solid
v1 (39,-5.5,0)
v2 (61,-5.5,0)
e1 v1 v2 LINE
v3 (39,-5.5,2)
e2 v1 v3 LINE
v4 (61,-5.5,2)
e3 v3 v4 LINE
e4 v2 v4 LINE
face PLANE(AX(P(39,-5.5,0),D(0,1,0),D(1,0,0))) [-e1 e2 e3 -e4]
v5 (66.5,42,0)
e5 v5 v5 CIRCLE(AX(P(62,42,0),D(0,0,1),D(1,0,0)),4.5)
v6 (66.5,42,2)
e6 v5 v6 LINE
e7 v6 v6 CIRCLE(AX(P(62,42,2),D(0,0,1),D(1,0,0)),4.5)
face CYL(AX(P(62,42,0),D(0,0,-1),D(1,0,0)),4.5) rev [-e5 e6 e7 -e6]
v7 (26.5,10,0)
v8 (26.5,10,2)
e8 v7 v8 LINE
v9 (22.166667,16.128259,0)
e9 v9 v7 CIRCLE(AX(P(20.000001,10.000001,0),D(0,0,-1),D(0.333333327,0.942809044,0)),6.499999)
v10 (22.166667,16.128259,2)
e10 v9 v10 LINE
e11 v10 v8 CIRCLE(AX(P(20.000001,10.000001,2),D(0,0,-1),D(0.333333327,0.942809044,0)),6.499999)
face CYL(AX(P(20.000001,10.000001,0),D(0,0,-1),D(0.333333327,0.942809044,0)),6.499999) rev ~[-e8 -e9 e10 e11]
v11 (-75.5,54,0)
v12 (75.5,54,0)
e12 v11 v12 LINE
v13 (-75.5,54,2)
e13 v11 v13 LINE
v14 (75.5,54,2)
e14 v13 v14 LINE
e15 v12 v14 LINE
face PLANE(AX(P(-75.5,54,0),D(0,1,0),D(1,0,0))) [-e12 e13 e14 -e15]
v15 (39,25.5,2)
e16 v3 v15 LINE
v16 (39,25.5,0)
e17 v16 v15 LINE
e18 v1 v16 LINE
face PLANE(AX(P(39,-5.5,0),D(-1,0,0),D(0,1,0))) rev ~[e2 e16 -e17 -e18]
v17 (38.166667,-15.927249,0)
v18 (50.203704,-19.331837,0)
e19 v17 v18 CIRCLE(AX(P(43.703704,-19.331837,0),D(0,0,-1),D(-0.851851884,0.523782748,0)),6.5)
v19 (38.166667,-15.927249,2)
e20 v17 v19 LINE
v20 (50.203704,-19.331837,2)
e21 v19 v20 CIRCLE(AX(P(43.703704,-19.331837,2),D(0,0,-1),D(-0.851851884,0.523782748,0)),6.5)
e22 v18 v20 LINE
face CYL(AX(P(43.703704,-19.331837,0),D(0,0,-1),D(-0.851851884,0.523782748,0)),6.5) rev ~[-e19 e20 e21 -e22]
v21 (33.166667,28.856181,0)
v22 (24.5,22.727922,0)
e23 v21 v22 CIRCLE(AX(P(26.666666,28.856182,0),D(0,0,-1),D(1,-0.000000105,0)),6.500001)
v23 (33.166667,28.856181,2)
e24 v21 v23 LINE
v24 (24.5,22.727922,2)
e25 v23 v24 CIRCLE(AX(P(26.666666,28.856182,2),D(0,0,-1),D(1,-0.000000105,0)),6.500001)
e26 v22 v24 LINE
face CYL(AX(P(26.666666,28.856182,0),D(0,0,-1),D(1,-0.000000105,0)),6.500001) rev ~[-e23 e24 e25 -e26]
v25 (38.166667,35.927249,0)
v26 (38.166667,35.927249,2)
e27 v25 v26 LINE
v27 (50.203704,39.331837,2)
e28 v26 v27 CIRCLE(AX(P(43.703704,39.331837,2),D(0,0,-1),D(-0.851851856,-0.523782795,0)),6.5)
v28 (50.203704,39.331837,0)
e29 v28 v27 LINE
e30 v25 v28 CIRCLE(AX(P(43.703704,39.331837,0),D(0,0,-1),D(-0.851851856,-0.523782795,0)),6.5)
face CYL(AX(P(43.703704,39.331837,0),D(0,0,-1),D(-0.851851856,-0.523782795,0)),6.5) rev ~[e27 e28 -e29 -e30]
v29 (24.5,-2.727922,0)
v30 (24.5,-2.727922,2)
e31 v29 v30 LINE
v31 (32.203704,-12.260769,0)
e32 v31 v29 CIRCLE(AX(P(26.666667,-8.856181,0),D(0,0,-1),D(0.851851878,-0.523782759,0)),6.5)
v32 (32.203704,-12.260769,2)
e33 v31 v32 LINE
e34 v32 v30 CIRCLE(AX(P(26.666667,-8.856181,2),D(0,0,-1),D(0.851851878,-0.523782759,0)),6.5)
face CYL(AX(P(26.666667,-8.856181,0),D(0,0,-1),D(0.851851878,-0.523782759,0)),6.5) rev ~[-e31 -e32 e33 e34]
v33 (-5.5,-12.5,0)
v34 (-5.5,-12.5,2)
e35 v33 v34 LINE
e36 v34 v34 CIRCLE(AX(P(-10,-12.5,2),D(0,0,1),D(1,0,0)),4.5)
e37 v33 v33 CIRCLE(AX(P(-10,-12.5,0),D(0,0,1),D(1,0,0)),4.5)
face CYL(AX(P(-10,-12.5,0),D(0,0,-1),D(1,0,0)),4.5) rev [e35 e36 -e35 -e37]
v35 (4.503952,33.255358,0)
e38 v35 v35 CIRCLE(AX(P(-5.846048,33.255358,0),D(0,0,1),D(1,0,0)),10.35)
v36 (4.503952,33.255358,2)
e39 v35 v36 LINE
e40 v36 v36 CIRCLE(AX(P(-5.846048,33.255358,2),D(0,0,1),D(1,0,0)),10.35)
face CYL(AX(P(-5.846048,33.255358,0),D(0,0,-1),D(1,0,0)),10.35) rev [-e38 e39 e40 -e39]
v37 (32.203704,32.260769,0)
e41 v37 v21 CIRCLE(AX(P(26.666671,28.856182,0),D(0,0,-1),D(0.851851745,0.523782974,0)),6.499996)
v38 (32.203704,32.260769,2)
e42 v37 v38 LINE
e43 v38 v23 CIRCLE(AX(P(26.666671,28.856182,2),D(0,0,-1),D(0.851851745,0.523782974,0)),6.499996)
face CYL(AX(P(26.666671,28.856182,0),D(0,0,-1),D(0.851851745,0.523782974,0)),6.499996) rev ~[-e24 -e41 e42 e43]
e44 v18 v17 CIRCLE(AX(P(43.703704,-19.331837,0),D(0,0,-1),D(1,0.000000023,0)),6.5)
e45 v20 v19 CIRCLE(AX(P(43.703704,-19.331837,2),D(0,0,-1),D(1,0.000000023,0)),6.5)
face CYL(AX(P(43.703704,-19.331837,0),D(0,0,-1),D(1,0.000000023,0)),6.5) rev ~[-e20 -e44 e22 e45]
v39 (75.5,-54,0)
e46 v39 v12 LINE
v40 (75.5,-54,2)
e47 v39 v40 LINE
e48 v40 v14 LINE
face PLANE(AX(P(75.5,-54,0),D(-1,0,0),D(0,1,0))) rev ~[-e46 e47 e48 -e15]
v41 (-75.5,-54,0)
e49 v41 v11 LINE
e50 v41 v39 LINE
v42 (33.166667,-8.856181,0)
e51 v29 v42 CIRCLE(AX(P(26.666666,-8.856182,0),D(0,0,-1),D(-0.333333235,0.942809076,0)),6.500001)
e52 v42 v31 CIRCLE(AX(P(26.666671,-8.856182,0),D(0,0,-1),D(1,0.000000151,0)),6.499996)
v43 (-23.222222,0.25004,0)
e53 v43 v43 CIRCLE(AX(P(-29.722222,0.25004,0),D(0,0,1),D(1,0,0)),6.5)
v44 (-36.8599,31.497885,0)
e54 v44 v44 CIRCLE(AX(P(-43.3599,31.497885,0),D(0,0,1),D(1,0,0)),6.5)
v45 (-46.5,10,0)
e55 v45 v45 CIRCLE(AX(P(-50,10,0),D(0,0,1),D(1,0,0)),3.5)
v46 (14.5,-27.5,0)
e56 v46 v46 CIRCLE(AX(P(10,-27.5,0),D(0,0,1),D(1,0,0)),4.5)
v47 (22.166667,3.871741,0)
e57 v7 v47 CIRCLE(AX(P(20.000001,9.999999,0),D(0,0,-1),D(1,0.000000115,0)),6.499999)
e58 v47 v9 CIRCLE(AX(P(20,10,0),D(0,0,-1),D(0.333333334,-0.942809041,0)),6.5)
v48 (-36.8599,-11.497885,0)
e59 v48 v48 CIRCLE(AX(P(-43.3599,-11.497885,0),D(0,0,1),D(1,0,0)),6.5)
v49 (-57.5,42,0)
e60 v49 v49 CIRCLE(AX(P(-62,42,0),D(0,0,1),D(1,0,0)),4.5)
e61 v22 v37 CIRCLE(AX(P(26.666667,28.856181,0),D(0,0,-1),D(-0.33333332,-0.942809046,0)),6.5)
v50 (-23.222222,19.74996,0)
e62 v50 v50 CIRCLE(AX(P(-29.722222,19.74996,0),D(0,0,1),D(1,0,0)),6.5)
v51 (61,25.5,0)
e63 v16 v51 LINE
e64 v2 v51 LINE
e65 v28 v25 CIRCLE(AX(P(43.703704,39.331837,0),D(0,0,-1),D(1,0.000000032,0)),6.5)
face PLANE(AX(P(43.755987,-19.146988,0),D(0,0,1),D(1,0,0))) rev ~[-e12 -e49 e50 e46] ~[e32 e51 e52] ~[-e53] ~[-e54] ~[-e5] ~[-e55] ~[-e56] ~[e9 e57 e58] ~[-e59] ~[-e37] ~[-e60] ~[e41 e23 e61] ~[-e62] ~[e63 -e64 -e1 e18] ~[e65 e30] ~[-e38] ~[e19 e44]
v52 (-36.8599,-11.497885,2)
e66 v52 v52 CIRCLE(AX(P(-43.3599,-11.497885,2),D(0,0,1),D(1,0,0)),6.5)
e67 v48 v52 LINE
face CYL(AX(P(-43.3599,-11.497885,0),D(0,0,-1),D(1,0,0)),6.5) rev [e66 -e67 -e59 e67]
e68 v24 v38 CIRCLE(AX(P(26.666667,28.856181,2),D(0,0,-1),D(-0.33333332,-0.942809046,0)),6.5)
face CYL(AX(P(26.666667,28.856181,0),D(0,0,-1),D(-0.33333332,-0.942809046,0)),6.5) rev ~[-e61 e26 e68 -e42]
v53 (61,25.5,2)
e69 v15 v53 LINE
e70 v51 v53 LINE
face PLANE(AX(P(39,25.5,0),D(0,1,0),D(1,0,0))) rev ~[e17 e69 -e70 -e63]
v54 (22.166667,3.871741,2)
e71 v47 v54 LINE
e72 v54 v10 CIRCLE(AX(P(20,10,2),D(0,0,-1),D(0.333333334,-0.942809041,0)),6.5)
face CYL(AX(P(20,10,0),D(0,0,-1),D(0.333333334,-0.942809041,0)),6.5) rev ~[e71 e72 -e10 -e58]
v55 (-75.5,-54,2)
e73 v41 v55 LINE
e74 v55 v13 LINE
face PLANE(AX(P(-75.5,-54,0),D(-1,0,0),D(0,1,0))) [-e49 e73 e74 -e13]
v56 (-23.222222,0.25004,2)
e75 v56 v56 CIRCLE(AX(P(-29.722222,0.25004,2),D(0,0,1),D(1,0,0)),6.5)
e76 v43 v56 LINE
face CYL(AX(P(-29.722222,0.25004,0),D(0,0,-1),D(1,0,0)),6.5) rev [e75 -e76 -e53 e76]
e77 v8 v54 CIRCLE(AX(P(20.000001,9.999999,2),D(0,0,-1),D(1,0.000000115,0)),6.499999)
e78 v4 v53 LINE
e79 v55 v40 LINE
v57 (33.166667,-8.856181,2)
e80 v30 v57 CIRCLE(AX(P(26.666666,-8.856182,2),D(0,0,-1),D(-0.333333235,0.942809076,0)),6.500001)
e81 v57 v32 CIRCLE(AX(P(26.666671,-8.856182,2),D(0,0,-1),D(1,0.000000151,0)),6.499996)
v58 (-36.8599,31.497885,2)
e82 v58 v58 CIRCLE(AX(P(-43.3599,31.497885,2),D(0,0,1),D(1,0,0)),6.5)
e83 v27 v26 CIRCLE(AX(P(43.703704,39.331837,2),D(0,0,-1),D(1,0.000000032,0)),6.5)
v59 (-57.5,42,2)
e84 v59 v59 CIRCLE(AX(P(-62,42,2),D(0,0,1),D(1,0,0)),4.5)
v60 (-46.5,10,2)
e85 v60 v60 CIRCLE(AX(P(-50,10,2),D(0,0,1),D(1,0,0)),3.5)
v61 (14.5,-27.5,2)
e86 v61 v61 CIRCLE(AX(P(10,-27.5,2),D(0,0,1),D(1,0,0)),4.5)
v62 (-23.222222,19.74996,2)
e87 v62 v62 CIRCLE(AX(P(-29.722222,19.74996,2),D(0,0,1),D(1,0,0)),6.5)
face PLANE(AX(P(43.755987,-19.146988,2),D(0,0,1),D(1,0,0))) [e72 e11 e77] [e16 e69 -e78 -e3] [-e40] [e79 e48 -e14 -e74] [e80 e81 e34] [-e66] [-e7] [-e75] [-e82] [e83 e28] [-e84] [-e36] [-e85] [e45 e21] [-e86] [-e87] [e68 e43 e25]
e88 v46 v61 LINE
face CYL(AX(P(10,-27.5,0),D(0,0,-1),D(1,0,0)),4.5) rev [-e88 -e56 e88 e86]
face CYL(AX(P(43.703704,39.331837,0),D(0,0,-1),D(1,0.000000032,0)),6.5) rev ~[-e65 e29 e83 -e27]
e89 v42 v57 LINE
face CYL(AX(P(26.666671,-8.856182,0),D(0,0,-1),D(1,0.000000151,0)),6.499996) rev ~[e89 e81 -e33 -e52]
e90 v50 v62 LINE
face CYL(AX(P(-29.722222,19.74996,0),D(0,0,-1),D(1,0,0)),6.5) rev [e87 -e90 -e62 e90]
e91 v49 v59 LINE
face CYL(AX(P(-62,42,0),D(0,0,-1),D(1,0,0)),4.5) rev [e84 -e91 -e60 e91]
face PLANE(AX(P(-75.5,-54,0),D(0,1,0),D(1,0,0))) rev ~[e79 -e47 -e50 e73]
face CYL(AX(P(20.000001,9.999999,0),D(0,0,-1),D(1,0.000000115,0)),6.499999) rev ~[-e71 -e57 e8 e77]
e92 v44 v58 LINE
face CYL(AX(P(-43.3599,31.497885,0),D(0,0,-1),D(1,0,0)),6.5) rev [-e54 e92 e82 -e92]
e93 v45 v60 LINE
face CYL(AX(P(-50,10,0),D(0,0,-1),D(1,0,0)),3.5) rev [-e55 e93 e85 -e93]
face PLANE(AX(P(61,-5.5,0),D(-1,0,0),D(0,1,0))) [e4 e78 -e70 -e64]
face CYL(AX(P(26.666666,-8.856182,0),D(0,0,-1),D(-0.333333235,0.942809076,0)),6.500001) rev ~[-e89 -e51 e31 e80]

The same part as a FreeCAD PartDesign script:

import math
import FreeCAD as App
import Part
import Sketcher
from FreeCAD import Vector

doc = App.newDocument("Part")
params = doc.addObject("Spreadsheet::Sheet", "Params")
for row, (alias, value) in enumerate([
    ("sketch1_diameter", "9 mm"),
    ("sketch1_diameter2", "13 mm"),
    ("sketch1_diameter3", "7 mm"),
    ("sketch1_diameter4", "20.7 mm"),
    ("sketch1_width", "151 mm"),
    ("pad1_length", "2 mm"),
], start=1):
    params.set(f"A{row}", alias)
    params.set(f"B{row}", "=" + value)
    params.setAlias(f"B{row}", alias)

body = doc.addObject("PartDesign::Body", "Body")

sketch1 = doc.addObject("Sketcher::SketchObject", "Sketch")
body.addObject(sketch1)
sketch1.AttachmentSupport = (doc.XY_Plane, [""])
sketch1.MapMode = "FlatFace"
sketch1.addGeometry(Part.LineSegment(Vector(-75.5, 54, 0), Vector(-75.5, -54, 0)), False)
sketch1.addGeometry(Part.LineSegment(Vector(-75.5, -54, 0), Vector(75.5, -54, 0)), False)
sketch1.addGeometry(Part.LineSegment(Vector(75.5, -54, 0), Vector(75.5, 54, 0)), False)
sketch1.addGeometry(Part.LineSegment(Vector(75.5, 54, 0), Vector(-75.5, 54, 0)), False)
sketch1.addGeometry(Part.Circle(Vector(-10, -12.5, 0), Vector(0, 0, 1), 4.5), False)
sketch1.addGeometry(Part.Circle(Vector(-43.4, -11.5, 0), Vector(0, 0, 1), 6.5), False)
sketch1.addGeometry(Part.Circle(Vector(-29.7, 0.3, 0), Vector(0, 0, 1), 6.5), False)
sketch1.addGeometry(Part.Circle(Vector(10, -27.5, 0), Vector(0, 0, 1), 4.5), False)
sketch1.addGeometry(Part.ArcOfCircle(Part.Circle(Vector(43.7, -19.3, 0), Vector(0, 0, 1), 6.5), math.radians(0), math.radians(148)), False)
sketch1.addGeometry(Part.ArcOfCircle(Part.Circle(Vector(43.7, -19.3, 0), Vector(0, 0, 1), 6.5), math.radians(148), math.radians(360)), False)
sketch1.addGeometry(Part.ArcOfCircle(Part.Circle(Vector(26.7, -8.9, 0), Vector(0, 0, 1), 6.5), math.radians(-32), math.radians(0)), False)
sketch1.addGeometry(Part.ArcOfCircle(Part.Circle(Vector(26.7, -8.9, 0), Vector(0, 0, 1), 6.5), math.radians(109), math.radians(328)), False)
sketch1.addGeometry(Part.ArcOfCircle(Part.Circle(Vector(26.7, -8.9, 0), Vector(0, 0, 1), 6.5), math.radians(0), math.radians(109)), False)
sketch1.addGeometry(Part.Circle(Vector(-50, 10, 0), Vector(0, 0, 1), 3.5), False)
sketch1.addGeometry(Part.Circle(Vector(-29.7, 19.7, 0), Vector(0, 0, 1), 6.5), False)
sketch1.addGeometry(Part.Circle(Vector(-43.4, 31.5, 0), Vector(0, 0, 1), 6.5), False)
sketch1.addGeometry(Part.Circle(Vector(-62, 42, 0), Vector(0, 0, 1), 4.5), False)
sketch1.addGeometry(Part.Circle(Vector(-5.8, 33.3, 0), Vector(0, 0, 1), 10.3), False)
sketch1.addGeometry(Part.ArcOfCircle(Part.Circle(Vector(20, 10, 0), Vector(0, 0, 1), 6.5), math.radians(71), math.radians(289)), False)
sketch1.addGeometry(Part.ArcOfCircle(Part.Circle(Vector(20, 10, 0), Vector(0, 0, 1), 6.5), math.radians(0), math.radians(71)), False)
sketch1.addGeometry(Part.ArcOfCircle(Part.Circle(Vector(20, 10, 0), Vector(0, 0, 1), 6.5), math.radians(-71), math.radians(0)), False)
sketch1.addGeometry(Part.LineSegment(Vector(61, -5.5, 0), Vector(39, -5.5, 0)), False)
sketch1.addGeometry(Part.LineSegment(Vector(39, -5.5, 0), Vector(39, 25.5, 0)), False)
sketch1.addGeometry(Part.LineSegment(Vector(39, 25.5, 0), Vector(61, 25.5, 0)), False)
sketch1.addGeometry(Part.LineSegment(Vector(61, 25.5, 0), Vector(61, -5.5, 0)), False)
sketch1.addGeometry(Part.ArcOfCircle(Part.Circle(Vector(26.7, 28.9, 0), Vector(0, 0, 1), 6.5), math.radians(0), math.radians(32)), False)
sketch1.addGeometry(Part.ArcOfCircle(Part.Circle(Vector(26.7, 28.9, 0), Vector(0, 0, 1), 6.5), math.radians(-109), math.radians(0)), False)
sketch1.addGeometry(Part.ArcOfCircle(Part.Circle(Vector(26.7, 28.9, 0), Vector(0, 0, 1), 6.5), math.radians(32), math.radians(251)), False)
sketch1.addGeometry(Part.ArcOfCircle(Part.Circle(Vector(43.7, 39.3, 0), Vector(0, 0, 1), 6.5), math.radians(0), math.radians(212)), False)
sketch1.addGeometry(Part.ArcOfCircle(Part.Circle(Vector(43.7, 39.3, 0), Vector(0, 0, 1), 6.5), math.radians(-148), math.radians(0)), False)
sketch1.addGeometry(Part.Circle(Vector(62, 42, 0), Vector(0, 0, 1), 4.5), False)
sketch1.addConstraint(Sketcher.Constraint("Coincident", 0, 2, 1, 1))
sketch1.addConstraint(Sketcher.Constraint("Coincident", 1, 2, 2, 1))
sketch1.addConstraint(Sketcher.Constraint("Coincident", 2, 2, 3, 1))
sketch1.addConstraint(Sketcher.Constraint("Coincident", 3, 2, 0, 1))
sketch1.addConstraint(Sketcher.Constraint("Tangent", 8, 1, 9, 2))
sketch1.addConstraint(Sketcher.Constraint("Coincident", 9, 1, 8, 2))
sketch1.addConstraint(Sketcher.Constraint("Tangent", 10, 1, 11, 2))
sketch1.addConstraint(Sketcher.Constraint("Tangent", 11, 1, 12, 2))
sketch1.addConstraint(Sketcher.Constraint("Tangent", 12, 1, 10, 2))
sketch1.addConstraint(Sketcher.Constraint("Tangent", 18, 1, 19, 2))
sketch1.addConstraint(Sketcher.Constraint("Tangent", 19, 1, 20, 2))
sketch1.addConstraint(Sketcher.Constraint("Tangent", 20, 1, 18, 2))
sketch1.addConstraint(Sketcher.Constraint("Coincident", 21, 2, 22, 1))
sketch1.addConstraint(Sketcher.Constraint("Coincident", 22, 2, 23, 1))
sketch1.addConstraint(Sketcher.Constraint("Coincident", 23, 2, 24, 1))
sketch1.addConstraint(Sketcher.Constraint("Coincident", 24, 2, 21, 1))
sketch1.addConstraint(Sketcher.Constraint("Tangent", 25, 1, 26, 2))
sketch1.addConstraint(Sketcher.Constraint("Tangent", 26, 1, 27, 2))
sketch1.addConstraint(Sketcher.Constraint("Tangent", 27, 1, 25, 2))
sketch1.addConstraint(Sketcher.Constraint("Tangent", 28, 1, 29, 2))
sketch1.addConstraint(Sketcher.Constraint("Coincident", 29, 1, 28, 2))
sketch1.addConstraint(Sketcher.Constraint("Vertical", 0))
sketch1.addConstraint(Sketcher.Constraint("Horizontal", 1))
sketch1.addConstraint(Sketcher.Constraint("Vertical", 2))
sketch1.addConstraint(Sketcher.Constraint("Horizontal", 3))
sketch1.addConstraint(Sketcher.Constraint("Horizontal", 21))
sketch1.addConstraint(Sketcher.Constraint("Vertical", 22))
sketch1.addConstraint(Sketcher.Constraint("Horizontal", 23))
sketch1.addConstraint(Sketcher.Constraint("Vertical", 24))
sketch1.addConstraint(Sketcher.Constraint("Equal", 5, 6))
sketch1.addConstraint(Sketcher.Constraint("Equal", 4, 7))
sketch1.addConstraint(Sketcher.Constraint("Equal", 6, 8))
sketch1.addConstraint(Sketcher.Constraint("Equal", 9, 11))
sketch1.addConstraint(Sketcher.Constraint("Equal", 12, 14))
sketch1.addConstraint(Sketcher.Constraint("Equal", 14, 15))
sketch1.addConstraint(Sketcher.Constraint("Equal", 7, 16))
sketch1.addConstraint(Sketcher.Constraint("Equal", 15, 18))
sketch1.addConstraint(Sketcher.Constraint("Equal", 10, 25))
sketch1.addConstraint(Sketcher.Constraint("Equal", 27, 28))
sketch1.addConstraint(Sketcher.Constraint("Equal", 16, 30))
sketch1.addConstraint(Sketcher.Constraint("Symmetric", 0, 2, 2, 2, -1, 1))
sketch1.addConstraint(Sketcher.Constraint("Symmetric", 16, 3, 30, 3, -2))
sketch1.addConstraint(Sketcher.Constraint("Horizontal", 13, 3, 18, 3))
sketch1.addConstraint(Sketcher.Constraint("Horizontal", 9, 3, 8, 1))
sketch1.addConstraint(Sketcher.Constraint("Horizontal", 11, 3, 12, 1))
sketch1.addConstraint(Sketcher.Constraint("Horizontal", 20, 3, 19, 1))
sketch1.addConstraint(Sketcher.Constraint("Horizontal", 27, 3, 25, 1))
sketch1.addConstraint(Sketcher.Constraint("Horizontal", 29, 3, 28, 1))
sketch1.addConstraint(Sketcher.Constraint("Vertical", 6, 3, 14, 3))
sketch1.addConstraint(Sketcher.Constraint("Vertical", 5, 3, 15, 3))
sketch1.addConstraint(Sketcher.Constraint("Vertical", 10, 3, 25, 3))
sketch1.addConstraint(Sketcher.Constraint("Vertical", 9, 3, 28, 3))
sketch1.addConstraint(Sketcher.Constraint("Vertical", 18, 1, 20, 1))
sketch1.addConstraint(Sketcher.Constraint("Vertical", 11, 1, 26, 1))
sketch1.addConstraint(Sketcher.Constraint("Vertical", 10, 1, 27, 1))
sketch1.addConstraint(Sketcher.Constraint("Vertical", 9, 1, 29, 1))
sketch1.addConstraint(Sketcher.Constraint("Diameter", 4, 9.0))
sketch1.addConstraint(Sketcher.Constraint("Diameter", 5, 13.0))
sketch1.addConstraint(Sketcher.Constraint("Diameter", 13, 7.0))
sketch1.addConstraint(Sketcher.Constraint("Diameter", 17, 20.7))
sketch1.addConstraint(Sketcher.Constraint("DistanceX", 1, 1, 1, 2, 151.0))
sketch1.addConstraint(Sketcher.Constraint("DistanceX", 21, 2, 21, 1, 22.0))
sketch1.addConstraint(Sketcher.Constraint("DistanceY", 0, 2, 0, 1, 108.0))
sketch1.addConstraint(Sketcher.Constraint("DistanceY", 22, 1, 22, 2, 31.0))
sketch1.addConstraint(Sketcher.Constraint("DistanceX", 4, 3, -1, 1, 10.0))
sketch1.addConstraint(Sketcher.Constraint("DistanceX", -1, 1, 7, 3, 10.0))
sketch1.addConstraint(Sketcher.Constraint("DistanceX", 13, 3, -1, 1, 50.0))
sketch1.addConstraint(Sketcher.Constraint("DistanceY", -1, 1, 13, 3, 10.0))
sketch1.addConstraint(Sketcher.Constraint("DistanceX", 16, 3, -1, 1, 62.0))
sketch1.addConstraint(Sketcher.Constraint("DistanceY", -1, 1, 16, 3, 42.0))
sketch1.addConstraint(Sketcher.Constraint("DistanceX", -1, 1, 18, 3, 20.0))
sketch1.addConstraint(Sketcher.Constraint("DistanceX", -1, 1, 21, 2, 39.0))
sketch1.addConstraint(Sketcher.Constraint("DistanceY", 7, 3, 4, 3, 15.0))
sketch1.addConstraint(Sketcher.Constraint("DistanceX", 12, 1, 9, 1, 5.0))
sketch1.addConstraint(Sketcher.Constraint("DistanceX", 11, 1, 19, 1, 2.0))
sketch1.addConstraint(Sketcher.Constraint("DistanceY", 4, 3, -1, 1, 12.5))
sketch1.addConstraint(Sketcher.Constraint("DistanceY", 21, 2, -1, 1, 5.5))
sketch1.addConstraint(Sketcher.Constraint("DistanceX", 10, 1, 8, 3, 11.5))
sketch1.addConstraint(Sketcher.Constraint("DistanceX", 18, 1, 27, 3, 4.5))
sketch1.addConstraint(Sketcher.Constraint("DistanceX", 5, 3, -1, 1, 43.3599))
sketch1.addConstraint(Sketcher.Constraint("DistanceX", 6, 3, -1, 1, 29.722222))
sketch1.addConstraint(Sketcher.Constraint("DistanceY", -1, 1, 6, 3, 0.25004))
sketch1.addConstraint(Sketcher.Constraint("DistanceX", -1, 1, 10, 3, 26.666671))
sketch1.addConstraint(Sketcher.Constraint("DistanceY", 10, 3, -1, 1, 8.856182))
sketch1.addConstraint(Sketcher.Constraint("DistanceY", -1, 1, 14, 3, 19.74996))
sketch1.addConstraint(Sketcher.Constraint("DistanceY", -1, 1, 25, 3, 28.856182))
sketch1.addConstraint(Sketcher.Constraint("DistanceY", 9, 1, -1, 1, 15.927249))
sketch1.addConstraint(Sketcher.Constraint("DistanceY", 10, 1, -1, 1, 12.260769))
sketch1.addConstraint(Sketcher.Constraint("DistanceY", -1, 1, 29, 1, 35.927249))
sketch1.addConstraint(Sketcher.Constraint("DistanceY", 8, 3, 5, 3, 7.833952))
sketch1.addConstraint(Sketcher.Constraint("DistanceY", 5, 3, 15, 3, 42.99577))
sketch1.addConstraint(Sketcher.Constraint("DistanceY", 6, 3, 17, 3, 33.005318))
sketch1.addConstraint(Sketcher.Constraint("DistanceX", 17, 3, 18, 3, 25.846048))
sketch1.setExpression("Constraints[56]", "Params.sketch1_diameter")
sketch1.setExpression("Constraints[57]", "Params.sketch1_diameter2")
sketch1.setExpression("Constraints[58]", "Params.sketch1_diameter3")
sketch1.setExpression("Constraints[59]", "Params.sketch1_diameter4")
sketch1.setExpression("Constraints[60]", "Params.sketch1_width")
pad1 = doc.addObject("PartDesign::Pad", "Pad")
body.addObject(pad1)
pad1.Profile = sketch1
pad1.setExpression("Length", "Params.pad1_length")

doc.recompute()
